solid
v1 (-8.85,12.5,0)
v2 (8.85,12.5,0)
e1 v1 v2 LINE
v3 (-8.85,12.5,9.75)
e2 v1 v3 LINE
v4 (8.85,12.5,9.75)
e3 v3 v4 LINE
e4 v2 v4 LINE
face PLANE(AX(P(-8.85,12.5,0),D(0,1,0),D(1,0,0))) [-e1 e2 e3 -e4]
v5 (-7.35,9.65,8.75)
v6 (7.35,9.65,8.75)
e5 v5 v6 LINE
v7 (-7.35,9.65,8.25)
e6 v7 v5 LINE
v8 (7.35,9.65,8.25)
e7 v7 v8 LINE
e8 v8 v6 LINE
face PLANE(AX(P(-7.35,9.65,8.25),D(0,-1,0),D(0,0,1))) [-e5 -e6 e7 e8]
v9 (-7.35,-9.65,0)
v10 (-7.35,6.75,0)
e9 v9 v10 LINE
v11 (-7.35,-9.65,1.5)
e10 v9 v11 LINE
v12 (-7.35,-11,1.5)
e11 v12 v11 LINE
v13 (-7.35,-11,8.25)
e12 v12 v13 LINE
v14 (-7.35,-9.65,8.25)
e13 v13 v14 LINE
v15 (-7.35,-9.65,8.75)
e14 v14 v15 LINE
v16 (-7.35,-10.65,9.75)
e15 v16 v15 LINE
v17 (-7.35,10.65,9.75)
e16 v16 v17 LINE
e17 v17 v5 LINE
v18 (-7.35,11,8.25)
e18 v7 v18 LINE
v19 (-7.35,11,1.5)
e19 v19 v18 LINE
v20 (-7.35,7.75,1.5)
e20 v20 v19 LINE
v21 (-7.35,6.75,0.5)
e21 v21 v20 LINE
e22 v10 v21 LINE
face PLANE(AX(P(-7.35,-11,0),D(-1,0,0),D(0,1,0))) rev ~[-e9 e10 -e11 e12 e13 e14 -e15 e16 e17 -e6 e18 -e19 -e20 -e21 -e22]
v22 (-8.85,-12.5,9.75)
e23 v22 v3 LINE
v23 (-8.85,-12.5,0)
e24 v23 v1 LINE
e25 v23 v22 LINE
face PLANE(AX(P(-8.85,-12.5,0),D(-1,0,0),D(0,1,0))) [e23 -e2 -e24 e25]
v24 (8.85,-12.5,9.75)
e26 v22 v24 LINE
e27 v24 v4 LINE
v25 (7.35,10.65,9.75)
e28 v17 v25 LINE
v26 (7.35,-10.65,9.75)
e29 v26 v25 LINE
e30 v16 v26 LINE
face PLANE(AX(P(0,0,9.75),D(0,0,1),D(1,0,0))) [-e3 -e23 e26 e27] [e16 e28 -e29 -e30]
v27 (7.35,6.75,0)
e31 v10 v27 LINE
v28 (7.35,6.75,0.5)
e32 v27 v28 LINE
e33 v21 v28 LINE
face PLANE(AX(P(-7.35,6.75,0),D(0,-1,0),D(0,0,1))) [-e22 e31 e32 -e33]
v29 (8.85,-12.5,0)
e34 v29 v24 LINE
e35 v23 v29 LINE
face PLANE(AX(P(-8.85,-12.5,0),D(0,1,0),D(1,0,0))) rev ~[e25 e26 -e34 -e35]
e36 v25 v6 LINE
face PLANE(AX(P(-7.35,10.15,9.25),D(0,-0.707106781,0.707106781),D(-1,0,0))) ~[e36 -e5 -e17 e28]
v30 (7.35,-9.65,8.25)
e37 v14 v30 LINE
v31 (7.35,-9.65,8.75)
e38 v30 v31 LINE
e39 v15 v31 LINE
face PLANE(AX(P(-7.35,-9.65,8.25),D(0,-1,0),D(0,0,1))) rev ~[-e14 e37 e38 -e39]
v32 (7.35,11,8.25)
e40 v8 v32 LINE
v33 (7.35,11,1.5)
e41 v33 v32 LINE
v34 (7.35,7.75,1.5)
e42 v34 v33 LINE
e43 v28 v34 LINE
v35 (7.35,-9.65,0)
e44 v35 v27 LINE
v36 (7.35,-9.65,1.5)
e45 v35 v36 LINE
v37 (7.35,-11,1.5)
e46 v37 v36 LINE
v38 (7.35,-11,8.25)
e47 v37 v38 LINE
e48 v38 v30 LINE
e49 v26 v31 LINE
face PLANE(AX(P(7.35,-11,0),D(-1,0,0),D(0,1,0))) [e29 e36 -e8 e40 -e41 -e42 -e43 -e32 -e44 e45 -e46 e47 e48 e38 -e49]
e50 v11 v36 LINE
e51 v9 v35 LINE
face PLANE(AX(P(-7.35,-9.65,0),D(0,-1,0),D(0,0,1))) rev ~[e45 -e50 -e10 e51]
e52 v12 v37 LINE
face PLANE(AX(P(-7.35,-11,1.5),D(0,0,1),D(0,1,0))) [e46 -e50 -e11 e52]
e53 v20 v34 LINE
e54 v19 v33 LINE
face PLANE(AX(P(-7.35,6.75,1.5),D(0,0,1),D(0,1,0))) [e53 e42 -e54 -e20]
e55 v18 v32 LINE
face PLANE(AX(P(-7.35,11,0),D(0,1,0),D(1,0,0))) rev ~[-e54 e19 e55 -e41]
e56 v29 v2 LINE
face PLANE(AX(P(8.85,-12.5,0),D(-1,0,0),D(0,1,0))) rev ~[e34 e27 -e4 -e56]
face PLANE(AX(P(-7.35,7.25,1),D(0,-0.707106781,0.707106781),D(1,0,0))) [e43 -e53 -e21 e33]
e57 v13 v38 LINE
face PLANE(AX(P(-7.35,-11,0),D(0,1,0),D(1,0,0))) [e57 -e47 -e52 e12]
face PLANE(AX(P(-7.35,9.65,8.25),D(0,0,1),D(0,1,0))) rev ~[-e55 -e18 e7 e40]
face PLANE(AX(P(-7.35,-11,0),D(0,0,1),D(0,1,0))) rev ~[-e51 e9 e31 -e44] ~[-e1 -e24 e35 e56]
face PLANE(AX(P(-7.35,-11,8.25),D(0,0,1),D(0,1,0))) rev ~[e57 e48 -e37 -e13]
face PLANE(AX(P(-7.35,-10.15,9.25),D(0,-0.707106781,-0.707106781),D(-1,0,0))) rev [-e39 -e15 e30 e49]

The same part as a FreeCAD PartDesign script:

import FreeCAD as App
import Part
import Sketcher


def edges_at(feature, points):
    """Names of the edges that pass closest to the given points."""
    edges = feature.Shape.Edges
    near = lambda p: min(range(len(edges)), key=lambda i: edges[i].distToShape(Part.Vertex(*p))[0])
    return sorted({f"Edge{near(p) + 1}" for p in points})

doc = App.newDocument("Part")
body = doc.addObject("PartDesign::Body", "Body")

# Sketch on XY plane
sketch1 = body.newObject("Sketcher::SketchObject", "Sketch")
sketch1.AttachmentSupport = (doc.getObject("XY_Plane"), [""])
sketch1.MapMode = "FlatFace"
sketch1.addGeometry(Part.LineSegment(App.Vector(-8.85, 12.5, 0), App.Vector(-8.85, -12.5, 0)), False)
sketch1.addGeometry(Part.LineSegment(App.Vector(-8.85, -12.5, 0), App.Vector(8.85, -12.5, 0)), False)
sketch1.addGeometry(Part.LineSegment(App.Vector(8.85, -12.5, 0), App.Vector(8.85, 12.5, 0)), False)
sketch1.addGeometry(Part.LineSegment(App.Vector(8.85, 12.5, 0), App.Vector(-8.85, 12.5, 0)), False)
sketch1.addGeometry(Part.LineSegment(App.Vector(7.35, -11, 0), App.Vector(-7.35, -11, 0)), False)
sketch1.addGeometry(Part.LineSegment(App.Vector(-7.35, -11, 0), App.Vector(-7.35, 11, 0)), False)
sketch1.addGeometry(Part.LineSegment(App.Vector(-7.35, 11, 0), App.Vector(7.35, 11, 0)), False)
sketch1.addGeometry(Part.LineSegment(App.Vector(7.35, 11, 0), App.Vector(7.35, -11, 0)), False)
sketch1.addConstraint(Sketcher.Constraint("Coincident", 0, 2, 1, 1))
sketch1.addConstraint(Sketcher.Constraint("Coincident", 1, 2, 2, 1))
sketch1.addConstraint(Sketcher.Constraint("Coincident", 2, 2, 3, 1))
sketch1.addConstraint(Sketcher.Constraint("Coincident", 3, 2, 0, 1))
sketch1.addConstraint(Sketcher.Constraint("Coincident", 4, 2, 5, 1))
sketch1.addConstraint(Sketcher.Constraint("Coincident", 5, 2, 6, 1))
sketch1.addConstraint(Sketcher.Constraint("Coincident", 6, 2, 7, 1))
sketch1.addConstraint(Sketcher.Constraint("Coincident", 7, 2, 4, 1))
sketch1.addConstraint(Sketcher.Constraint("Vertical", 0))
sketch1.addConstraint(Sketcher.Constraint("Horizontal", 1))
sketch1.addConstraint(Sketcher.Constraint("Vertical", 2))
sketch1.addConstraint(Sketcher.Constraint("Horizontal", 3))
sketch1.addConstraint(Sketcher.Constraint("Horizontal", 4))
sketch1.addConstraint(Sketcher.Constraint("Vertical", 5))
sketch1.addConstraint(Sketcher.Constraint("Horizontal", 6))
sketch1.addConstraint(Sketcher.Constraint("Vertical", 7))
sketch1.addConstraint(Sketcher.Constraint("Symmetric", 0, 2, 2, 2, -1, 1))
sketch1.addConstraint(Sketcher.Constraint("Symmetric", 4, 2, 6, 2, -1, 1))
sketch1.addConstraint(Sketcher.Constraint("DistanceY", 0, 2, 0, 1, 25.0))
sketch1.addConstraint(Sketcher.Constraint("DistanceY", 5, 1, 5, 2, 22.0))
sketch1.addConstraint(Sketcher.Constraint("DistanceX", 1, 1, 1, 2, 17.7))
sketch1.addConstraint(Sketcher.Constraint("DistanceX", 4, 2, 4, 1, 14.7))
pad1 = body.newObject("PartDesign::Pad", "Pad")
pad1.Profile = sketch1
pad1.Length = 9.75

# Sketch on YZ plane
sketch2 = body.newObject("Sketcher::SketchObject", "Sketch001")
sketch2.AttachmentSupport = (doc.getObject("YZ_Plane"), [""])
sketch2.MapMode = "FlatFace"
sketch2.AttachmentOffset = App.Placement(App.Vector(0, 0, -7.35), App.Rotation())
sketch2.addGeometry(Part.LineSegment(App.Vector(-11, 1.5, 0), App.Vector(-11, 0, 0)), False)
sketch2.addGeometry(Part.LineSegment(App.Vector(-11, 0, 0), App.Vector(-9.65, 0, 0)), False)
sketch2.addGeometry(Part.LineSegment(App.Vector(-9.65, 0, 0), App.Vector(-9.65, 1.5, 0)), False)
sketch2.addGeometry(Part.LineSegment(App.Vector(-9.65, 1.5, 0), App.Vector(-11, 1.5, 0)), False)
sketch2.addGeometry(Part.LineSegment(App.Vector(-11, 9.75, 0), App.Vector(-11, 8.25, 0)), False)
sketch2.addGeometry(Part.LineSegment(App.Vector(-11, 8.25, 0), App.Vector(-9.65, 8.25, 0)), False)
sketch2.addGeometry(Part.LineSegment(App.Vector(-9.65, 8.25, 0), App.Vector(-9.65, 9.75, 0)), False)
sketch2.addGeometry(Part.LineSegment(App.Vector(-9.65, 9.75, 0), App.Vector(-11, 9.75, 0)), False)
sketch2.addGeometry(Part.LineSegment(App.Vector(9.65, 9.75, 0), App.Vector(9.65, 8.25, 0)), False)
sketch2.addGeometry(Part.LineSegment(App.Vector(9.65, 8.25, 0), App.Vector(11, 8.25, 0)), False)
sketch2.addGeometry(Part.LineSegment(App.Vector(11, 8.25, 0), App.Vector(11, 9.75, 0)), False)
sketch2.addGeometry(Part.LineSegment(App.Vector(11, 9.75, 0), App.Vector(9.65, 9.75, 0)), False)
sketch2.addGeometry(Part.LineSegment(App.Vector(6.75, 1.5, 0), App.Vector(6.75, 0, 0)), False)
sketch2.addGeometry(Part.LineSegment(App.Vector(6.75, 0, 0), App.Vector(11, 0, 0)), False)
sketch2.addGeometry(Part.LineSegment(App.Vector(11, 0, 0), App.Vector(11, 1.5, 0)), False)
sketch2.addGeometry(Part.LineSegment(App.Vector(11, 1.5, 0), App.Vector(6.75, 1.5, 0)), False)
sketch2.addConstraint(Sketcher.Constraint("Coincident", 0, 2, 1, 1))
sketch2.addConstraint(Sketcher.Constraint("Coincident", 1, 2, 2, 1))
sketch2.addConstraint(Sketcher.Constraint("Coincident", 2, 2, 3, 1))
sketch2.addConstraint(Sketcher.Constraint("Coincident", 3, 2, 0, 1))
sketch2.addConstraint(Sketcher.Constraint("Coincident", 4, 2, 5, 1))
sketch2.addConstraint(Sketcher.Constraint("Coincident", 5, 2, 6, 1))
sketch2.addConstraint(Sketcher.Constraint("Coincident", 6, 2, 7, 1))
sketch2.addConstraint(Sketcher.Constraint("Coincident", 7, 2, 4, 1))
sketch2.addConstraint(Sketcher.Constraint("Coincident", 8, 2, 9, 1))
sketch2.addConstraint(Sketcher.Constraint("Coincident", 9, 2, 10, 1))
sketch2.addConstraint(Sketcher.Constraint("Coincident", 10, 2, 11, 1))
sketch2.addConstraint(Sketcher.Constraint("Coincident", 11, 2, 8, 1))
sketch2.addConstraint(Sketcher.Constraint("Coincident", 12, 2, 13, 1))
sketch2.addConstraint(Sketcher.Constraint("Coincident", 13, 2, 14, 1))
sketch2.addConstraint(Sketcher.Constraint("Coincident", 14, 2, 15, 1))
sketch2.addConstraint(Sketcher.Constraint("Coincident", 15, 2, 12, 1))
sketch2.addConstraint(Sketcher.Constraint("Vertical", 0))
sketch2.addConstraint(Sketcher.Constraint("Horizontal", 1))
sketch2.addConstraint(Sketcher.Constraint("Vertical", 2))
sketch2.addConstraint(Sketcher.Constraint("Horizontal", 3))
sketch2.addConstraint(Sketcher.Constraint("Vertical", 4))
sketch2.addConstraint(Sketcher.Constraint("Horizontal", 5))
sketch2.addConstraint(Sketcher.Constraint("Vertical", 6))
sketch2.addConstraint(Sketcher.Constraint("Horizontal", 7))
sketch2.addConstraint(Sketcher.Constraint("Vertical", 8))
sketch2.addConstraint(Sketcher.Constraint("Horizontal", 9))
sketch2.addConstraint(Sketcher.Constraint("Vertical", 10))
sketch2.addConstraint(Sketcher.Constraint("Horizontal", 11))
sketch2.addConstraint(Sketcher.Constraint("Vertical", 12))
sketch2.addConstraint(Sketcher.Constraint("Horizontal", 13))
sketch2.addConstraint(Sketcher.Constraint("Vertical", 14))
sketch2.addConstraint(Sketcher.Constraint("Horizontal", 15))
sketch2.addConstraint(Sketcher.Constraint("Symmetric", 0, 2, 13, 2, -1, 1))
sketch2.addConstraint(Sketcher.Constraint("Symmetric", 5, 2, 8, 2, -2))
sketch2.addConstraint(Sketcher.Constraint("Symmetric", 7, 2, 10, 2, -2))
sketch2.addConstraint(Sketcher.Constraint("PointOnObject", 0, 2, -1))
sketch2.addConstraint(Sketcher.Constraint("Horizontal", 3, 2, 14, 2))
sketch2.addConstraint(Sketcher.Constraint("Vertical", 3, 2, 4, 2))
sketch2.addConstraint(Sketcher.Constraint("Vertical", 2, 2, 5, 2))
sketch2.addConstraint(Sketcher.Constraint("Equal", 2, 4))
sketch2.addConstraint(Sketcher.Constraint("DistanceY", 0, 2, 0, 1, 1.5))
sketch2.addConstraint(Sketcher.Constraint("DistanceX", 0, 2, -1, 1, 11.0))
sketch2.addConstraint(Sketcher.Constraint("DistanceX", 1, 1, 1, 2, 1.35))
sketch2.addConstraint(Sketcher.Constraint("DistanceX", 13, 1, 13, 2, 4.25))
sketch2.addConstraint(Sketcher.Constraint("DistanceY", -1, 1, 4, 2, 8.25))
pad2 = body.newObject("PartDesign::Pad", "Pad001")
pad2.Profile = sketch2
pad2.Length = 14.7
doc.recompute()

chamfer = body.newObject("PartDesign::Chamfer", "Chamfer")
chamfer.Base = (pad2, edges_at(pad2, [(0, -9.65, 9.75), (0, 9.65, 9.75), (0, 6.75, 1.5)]))
chamfer.Size = 1

doc.recompute()
